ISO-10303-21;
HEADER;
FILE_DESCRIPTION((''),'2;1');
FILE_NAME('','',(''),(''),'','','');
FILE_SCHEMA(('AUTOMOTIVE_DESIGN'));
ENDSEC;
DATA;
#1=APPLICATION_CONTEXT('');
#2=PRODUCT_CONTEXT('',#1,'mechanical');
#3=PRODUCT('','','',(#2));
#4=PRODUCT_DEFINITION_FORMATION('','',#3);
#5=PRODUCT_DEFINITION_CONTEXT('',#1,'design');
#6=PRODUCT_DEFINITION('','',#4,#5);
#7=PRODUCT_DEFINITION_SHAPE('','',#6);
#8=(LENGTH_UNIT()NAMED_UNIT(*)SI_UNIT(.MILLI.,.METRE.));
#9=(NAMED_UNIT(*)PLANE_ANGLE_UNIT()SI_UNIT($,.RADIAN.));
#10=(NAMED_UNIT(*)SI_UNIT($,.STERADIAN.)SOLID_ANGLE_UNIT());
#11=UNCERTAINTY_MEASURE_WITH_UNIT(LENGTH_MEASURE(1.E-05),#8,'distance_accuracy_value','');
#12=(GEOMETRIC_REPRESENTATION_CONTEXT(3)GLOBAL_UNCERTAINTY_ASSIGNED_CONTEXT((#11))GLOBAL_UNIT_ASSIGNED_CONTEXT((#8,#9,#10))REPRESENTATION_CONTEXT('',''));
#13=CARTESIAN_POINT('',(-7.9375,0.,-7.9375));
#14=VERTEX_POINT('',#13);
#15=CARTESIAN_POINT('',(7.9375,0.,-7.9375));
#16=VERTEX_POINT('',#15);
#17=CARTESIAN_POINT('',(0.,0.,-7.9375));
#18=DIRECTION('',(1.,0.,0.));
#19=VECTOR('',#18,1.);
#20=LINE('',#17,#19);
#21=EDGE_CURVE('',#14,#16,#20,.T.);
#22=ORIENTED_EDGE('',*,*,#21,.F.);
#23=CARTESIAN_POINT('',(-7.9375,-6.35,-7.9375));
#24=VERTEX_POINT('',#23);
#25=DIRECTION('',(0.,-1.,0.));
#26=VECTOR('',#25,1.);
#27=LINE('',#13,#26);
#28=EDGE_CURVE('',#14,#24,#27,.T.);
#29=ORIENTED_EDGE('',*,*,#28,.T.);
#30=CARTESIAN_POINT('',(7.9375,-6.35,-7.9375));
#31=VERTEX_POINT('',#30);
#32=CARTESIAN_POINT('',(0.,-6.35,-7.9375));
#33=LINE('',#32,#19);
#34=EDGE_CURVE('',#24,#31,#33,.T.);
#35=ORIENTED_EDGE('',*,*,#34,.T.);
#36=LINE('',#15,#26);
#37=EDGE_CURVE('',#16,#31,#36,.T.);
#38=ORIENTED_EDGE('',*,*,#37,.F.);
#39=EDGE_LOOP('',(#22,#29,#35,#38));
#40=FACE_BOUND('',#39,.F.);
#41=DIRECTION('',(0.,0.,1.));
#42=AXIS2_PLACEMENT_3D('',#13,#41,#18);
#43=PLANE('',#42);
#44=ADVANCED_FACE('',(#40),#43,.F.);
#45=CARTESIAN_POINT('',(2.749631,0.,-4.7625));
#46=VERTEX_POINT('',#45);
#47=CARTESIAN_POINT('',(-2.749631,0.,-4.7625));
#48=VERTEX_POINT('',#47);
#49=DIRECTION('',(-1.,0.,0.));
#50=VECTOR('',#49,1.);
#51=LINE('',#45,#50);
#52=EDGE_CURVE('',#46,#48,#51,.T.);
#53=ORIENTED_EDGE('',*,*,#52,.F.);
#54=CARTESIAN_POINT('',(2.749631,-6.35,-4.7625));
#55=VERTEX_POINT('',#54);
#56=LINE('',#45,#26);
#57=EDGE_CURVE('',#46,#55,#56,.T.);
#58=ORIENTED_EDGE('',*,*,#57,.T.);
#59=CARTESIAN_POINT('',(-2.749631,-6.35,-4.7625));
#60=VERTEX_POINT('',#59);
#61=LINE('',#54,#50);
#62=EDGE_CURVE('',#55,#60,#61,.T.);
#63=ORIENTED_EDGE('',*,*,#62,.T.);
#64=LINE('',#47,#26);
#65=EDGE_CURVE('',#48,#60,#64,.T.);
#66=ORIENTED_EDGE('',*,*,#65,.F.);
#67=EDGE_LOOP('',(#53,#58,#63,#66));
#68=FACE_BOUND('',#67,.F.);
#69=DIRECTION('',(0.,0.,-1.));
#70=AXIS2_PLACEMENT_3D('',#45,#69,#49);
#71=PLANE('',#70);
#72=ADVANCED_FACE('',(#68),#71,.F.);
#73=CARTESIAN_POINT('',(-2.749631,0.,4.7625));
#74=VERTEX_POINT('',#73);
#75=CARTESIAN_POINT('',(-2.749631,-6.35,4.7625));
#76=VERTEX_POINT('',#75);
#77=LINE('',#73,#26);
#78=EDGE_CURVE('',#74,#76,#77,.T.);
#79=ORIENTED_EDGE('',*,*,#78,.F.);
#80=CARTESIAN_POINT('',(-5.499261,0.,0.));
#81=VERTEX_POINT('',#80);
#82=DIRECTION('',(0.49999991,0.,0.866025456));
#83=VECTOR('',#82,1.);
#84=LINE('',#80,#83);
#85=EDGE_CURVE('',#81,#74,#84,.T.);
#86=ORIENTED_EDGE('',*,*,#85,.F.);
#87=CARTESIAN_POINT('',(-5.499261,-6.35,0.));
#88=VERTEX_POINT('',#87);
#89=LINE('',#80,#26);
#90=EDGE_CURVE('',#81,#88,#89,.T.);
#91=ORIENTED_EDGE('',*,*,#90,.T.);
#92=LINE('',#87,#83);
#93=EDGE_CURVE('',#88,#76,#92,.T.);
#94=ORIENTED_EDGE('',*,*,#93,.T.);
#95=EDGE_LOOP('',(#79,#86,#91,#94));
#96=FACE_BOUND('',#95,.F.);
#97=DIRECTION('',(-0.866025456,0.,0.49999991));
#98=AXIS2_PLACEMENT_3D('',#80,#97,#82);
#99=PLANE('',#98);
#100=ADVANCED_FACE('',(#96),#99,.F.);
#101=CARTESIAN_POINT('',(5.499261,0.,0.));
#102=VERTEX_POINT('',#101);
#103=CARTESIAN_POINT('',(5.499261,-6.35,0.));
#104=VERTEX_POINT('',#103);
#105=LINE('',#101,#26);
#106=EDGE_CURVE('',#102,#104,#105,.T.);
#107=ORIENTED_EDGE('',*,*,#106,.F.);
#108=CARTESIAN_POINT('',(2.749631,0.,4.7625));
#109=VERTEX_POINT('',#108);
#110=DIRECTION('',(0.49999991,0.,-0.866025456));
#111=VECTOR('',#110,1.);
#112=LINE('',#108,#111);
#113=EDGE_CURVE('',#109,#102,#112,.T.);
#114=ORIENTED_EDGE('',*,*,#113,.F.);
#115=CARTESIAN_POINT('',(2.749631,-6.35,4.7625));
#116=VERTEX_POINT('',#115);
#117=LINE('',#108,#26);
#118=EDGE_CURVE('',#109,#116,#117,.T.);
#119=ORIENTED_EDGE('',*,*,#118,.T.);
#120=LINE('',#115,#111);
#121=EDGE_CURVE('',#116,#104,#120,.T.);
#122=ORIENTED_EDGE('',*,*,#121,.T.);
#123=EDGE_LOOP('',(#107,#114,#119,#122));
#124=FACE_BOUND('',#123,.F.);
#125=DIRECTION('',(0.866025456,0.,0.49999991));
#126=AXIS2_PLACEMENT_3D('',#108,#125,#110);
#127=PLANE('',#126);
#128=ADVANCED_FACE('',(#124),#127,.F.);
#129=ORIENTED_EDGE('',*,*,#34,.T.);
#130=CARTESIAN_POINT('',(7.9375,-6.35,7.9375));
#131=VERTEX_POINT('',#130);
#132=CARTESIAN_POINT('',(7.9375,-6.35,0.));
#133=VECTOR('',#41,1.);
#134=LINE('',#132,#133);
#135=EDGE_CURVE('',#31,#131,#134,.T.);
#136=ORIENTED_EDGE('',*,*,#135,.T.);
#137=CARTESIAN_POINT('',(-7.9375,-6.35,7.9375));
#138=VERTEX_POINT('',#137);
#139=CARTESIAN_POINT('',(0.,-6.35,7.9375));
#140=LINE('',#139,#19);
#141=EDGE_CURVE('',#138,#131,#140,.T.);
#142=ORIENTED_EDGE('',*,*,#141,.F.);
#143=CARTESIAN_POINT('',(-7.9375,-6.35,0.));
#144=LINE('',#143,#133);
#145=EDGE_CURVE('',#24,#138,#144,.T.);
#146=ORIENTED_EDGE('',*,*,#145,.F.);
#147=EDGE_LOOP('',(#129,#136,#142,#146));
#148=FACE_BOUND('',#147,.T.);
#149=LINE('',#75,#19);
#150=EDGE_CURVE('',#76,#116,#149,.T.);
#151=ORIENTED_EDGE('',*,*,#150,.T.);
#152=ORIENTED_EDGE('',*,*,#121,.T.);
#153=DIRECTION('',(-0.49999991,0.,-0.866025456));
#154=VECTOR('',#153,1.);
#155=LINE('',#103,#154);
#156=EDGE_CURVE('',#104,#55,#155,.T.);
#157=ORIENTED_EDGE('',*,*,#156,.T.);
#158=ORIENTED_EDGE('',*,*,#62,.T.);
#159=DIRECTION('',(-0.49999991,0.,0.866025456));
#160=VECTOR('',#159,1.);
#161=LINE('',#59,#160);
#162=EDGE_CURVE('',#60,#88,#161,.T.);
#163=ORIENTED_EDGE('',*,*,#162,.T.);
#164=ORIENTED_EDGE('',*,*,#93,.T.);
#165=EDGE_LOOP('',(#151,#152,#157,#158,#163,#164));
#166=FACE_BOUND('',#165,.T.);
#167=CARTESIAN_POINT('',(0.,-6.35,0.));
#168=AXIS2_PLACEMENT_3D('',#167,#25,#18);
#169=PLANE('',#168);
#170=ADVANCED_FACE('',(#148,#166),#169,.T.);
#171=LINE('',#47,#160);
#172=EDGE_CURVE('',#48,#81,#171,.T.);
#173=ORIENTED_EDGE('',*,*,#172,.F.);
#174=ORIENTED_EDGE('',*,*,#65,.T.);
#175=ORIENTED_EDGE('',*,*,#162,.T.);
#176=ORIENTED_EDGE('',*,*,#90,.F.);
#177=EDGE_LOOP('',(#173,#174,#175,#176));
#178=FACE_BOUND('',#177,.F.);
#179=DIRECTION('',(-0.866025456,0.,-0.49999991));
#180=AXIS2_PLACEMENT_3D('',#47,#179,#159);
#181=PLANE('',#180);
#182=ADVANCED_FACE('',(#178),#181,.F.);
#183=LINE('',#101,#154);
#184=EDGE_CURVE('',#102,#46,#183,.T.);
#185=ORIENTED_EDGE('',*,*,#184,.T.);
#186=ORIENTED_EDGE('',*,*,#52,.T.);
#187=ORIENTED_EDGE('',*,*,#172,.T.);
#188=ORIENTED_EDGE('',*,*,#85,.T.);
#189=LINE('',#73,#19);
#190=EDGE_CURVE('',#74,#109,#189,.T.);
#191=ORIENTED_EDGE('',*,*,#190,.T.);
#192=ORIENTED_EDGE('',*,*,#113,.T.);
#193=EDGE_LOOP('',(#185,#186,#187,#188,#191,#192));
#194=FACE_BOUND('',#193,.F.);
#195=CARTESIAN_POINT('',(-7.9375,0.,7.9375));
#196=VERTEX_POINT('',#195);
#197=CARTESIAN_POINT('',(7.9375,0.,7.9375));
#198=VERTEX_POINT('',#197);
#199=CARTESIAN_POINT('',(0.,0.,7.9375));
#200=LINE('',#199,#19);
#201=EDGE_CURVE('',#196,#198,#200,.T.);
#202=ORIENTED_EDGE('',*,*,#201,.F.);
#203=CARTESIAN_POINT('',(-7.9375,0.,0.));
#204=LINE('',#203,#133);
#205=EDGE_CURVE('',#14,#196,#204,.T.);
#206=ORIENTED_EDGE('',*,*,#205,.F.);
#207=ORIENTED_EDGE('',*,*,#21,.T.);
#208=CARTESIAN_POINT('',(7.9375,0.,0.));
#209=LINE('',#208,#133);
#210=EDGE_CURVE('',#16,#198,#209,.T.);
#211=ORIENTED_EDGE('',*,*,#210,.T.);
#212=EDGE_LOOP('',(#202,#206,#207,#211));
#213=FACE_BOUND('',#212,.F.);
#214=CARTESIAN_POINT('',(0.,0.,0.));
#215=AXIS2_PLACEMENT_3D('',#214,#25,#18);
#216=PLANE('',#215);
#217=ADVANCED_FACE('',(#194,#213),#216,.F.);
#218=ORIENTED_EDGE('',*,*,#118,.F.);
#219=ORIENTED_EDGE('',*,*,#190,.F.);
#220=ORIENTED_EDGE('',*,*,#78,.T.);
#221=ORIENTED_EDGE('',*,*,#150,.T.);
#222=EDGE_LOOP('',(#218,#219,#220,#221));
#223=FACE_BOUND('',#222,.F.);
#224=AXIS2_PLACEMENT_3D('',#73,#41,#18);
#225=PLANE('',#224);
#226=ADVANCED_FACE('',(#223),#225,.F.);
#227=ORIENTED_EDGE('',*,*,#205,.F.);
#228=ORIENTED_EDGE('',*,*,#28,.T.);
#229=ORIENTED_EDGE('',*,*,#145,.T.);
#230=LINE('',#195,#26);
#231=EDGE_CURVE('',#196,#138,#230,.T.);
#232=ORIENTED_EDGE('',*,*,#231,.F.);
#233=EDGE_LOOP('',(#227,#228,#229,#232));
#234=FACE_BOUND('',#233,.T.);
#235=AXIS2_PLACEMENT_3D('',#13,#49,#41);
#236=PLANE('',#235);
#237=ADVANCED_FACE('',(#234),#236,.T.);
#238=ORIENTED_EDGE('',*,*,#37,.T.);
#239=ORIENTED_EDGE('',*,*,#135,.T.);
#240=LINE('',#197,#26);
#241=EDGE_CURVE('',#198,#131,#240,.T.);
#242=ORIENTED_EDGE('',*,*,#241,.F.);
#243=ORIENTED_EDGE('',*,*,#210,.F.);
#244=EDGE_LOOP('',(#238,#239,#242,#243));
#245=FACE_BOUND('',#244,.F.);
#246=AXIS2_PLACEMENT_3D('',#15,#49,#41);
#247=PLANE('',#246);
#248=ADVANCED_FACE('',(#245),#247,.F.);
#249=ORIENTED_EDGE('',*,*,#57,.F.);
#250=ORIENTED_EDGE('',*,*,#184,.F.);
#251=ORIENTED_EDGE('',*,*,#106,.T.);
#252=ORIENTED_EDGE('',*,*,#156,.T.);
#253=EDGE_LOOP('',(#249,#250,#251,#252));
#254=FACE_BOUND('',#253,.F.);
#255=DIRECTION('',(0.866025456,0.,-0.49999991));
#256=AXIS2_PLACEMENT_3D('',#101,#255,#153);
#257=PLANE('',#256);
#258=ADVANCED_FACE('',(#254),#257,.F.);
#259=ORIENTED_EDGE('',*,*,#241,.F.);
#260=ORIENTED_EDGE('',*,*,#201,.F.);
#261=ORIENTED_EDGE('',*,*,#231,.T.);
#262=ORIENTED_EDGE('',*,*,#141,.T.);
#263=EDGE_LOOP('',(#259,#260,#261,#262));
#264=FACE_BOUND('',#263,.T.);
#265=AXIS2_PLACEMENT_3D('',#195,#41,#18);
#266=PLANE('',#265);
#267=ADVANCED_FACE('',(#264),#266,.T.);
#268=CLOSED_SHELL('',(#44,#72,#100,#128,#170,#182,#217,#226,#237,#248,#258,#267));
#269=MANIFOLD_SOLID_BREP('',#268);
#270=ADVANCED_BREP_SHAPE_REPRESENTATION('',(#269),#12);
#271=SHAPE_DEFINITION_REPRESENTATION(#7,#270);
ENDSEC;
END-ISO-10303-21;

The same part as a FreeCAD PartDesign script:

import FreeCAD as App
import Part
import Sketcher

V = App.Vector
Q = App.Units.Quantity


def add_polygon(sketch, points):
    """Adds a closed chain of lines whose ends are joined by coincident constraints."""
    first, n = sketch.GeometryCount, len(points)
    for a, b in zip(points, points[1:] + points[:1]):
        sketch.addGeometry(Part.LineSegment(App.Vector(*a, 0), App.Vector(*b, 0)), False)
    for i in range(n):
        sketch.addConstraint(Sketcher.Constraint("Coincident", first + i, 2, first + (i + 1) % n, 1))

doc = App.newDocument("Part")
body = doc.addObject("PartDesign::Body", "Body")

# Sketch on XZ plane
sketch1 = doc.addObject("Sketcher::SketchObject", "Sketch")
body.addObject(sketch1)
sketch1.AttachmentSupport = (doc.XZ_Plane, [""])
sketch1.MapMode = "FlatFace"
add_polygon(sketch1, [(-8, 8), (-8, -8), (8, -8), (8, 8)])  # lines 0-3
add_polygon(sketch1, [(-3, -5), (-5, 0), (-3, 5), (3, 5), (5, 0), (3, -5)])  # lines 4-9
sketch1.addConstraint([
    Sketcher.Constraint("Vertical", 0),
    Sketcher.Constraint("Horizontal", 1),
    Sketcher.Constraint("Vertical", 2),
    Sketcher.Constraint("Horizontal", 3),
    Sketcher.Constraint("Horizontal", 6),
    Sketcher.Constraint("Horizontal", 9),
    Sketcher.Constraint("Symmetric", 0, 2, 2, 2, -1, 1),
    Sketcher.Constraint("Symmetric", 4, 2, 7, 2, -1, 1),
    Sketcher.Constraint("Symmetric", 5, 2, 8, 2, -1, 1),
    Sketcher.Constraint("PointOnObject", 4, 2, -1),
    Sketcher.Constraint("Parallel", 4, 7),
    Sketcher.Constraint("Vertical", 6, 2, 8, 2),
    Sketcher.Constraint("Equal", 3, 0),
    Sketcher.Constraint("Angle", 4, Q("119.999994 deg")),
    Sketcher.Constraint("DistanceY", 0, 2, 5, 2, Q("0.5 in")),
    Sketcher.Constraint("DistanceX", 1, 1, 1, 2, Q("0.625 in")),
    Sketcher.Constraint("DistanceX", 6, 1, 6, 2, Q("5.499262 mm")),
])
pad1 = doc.addObject("PartDesign::Pad", "Pad")
body.addObject(pad1)
pad1.Profile = sketch1
pad1.Length = Q("0.25 in")

doc.recompute()
